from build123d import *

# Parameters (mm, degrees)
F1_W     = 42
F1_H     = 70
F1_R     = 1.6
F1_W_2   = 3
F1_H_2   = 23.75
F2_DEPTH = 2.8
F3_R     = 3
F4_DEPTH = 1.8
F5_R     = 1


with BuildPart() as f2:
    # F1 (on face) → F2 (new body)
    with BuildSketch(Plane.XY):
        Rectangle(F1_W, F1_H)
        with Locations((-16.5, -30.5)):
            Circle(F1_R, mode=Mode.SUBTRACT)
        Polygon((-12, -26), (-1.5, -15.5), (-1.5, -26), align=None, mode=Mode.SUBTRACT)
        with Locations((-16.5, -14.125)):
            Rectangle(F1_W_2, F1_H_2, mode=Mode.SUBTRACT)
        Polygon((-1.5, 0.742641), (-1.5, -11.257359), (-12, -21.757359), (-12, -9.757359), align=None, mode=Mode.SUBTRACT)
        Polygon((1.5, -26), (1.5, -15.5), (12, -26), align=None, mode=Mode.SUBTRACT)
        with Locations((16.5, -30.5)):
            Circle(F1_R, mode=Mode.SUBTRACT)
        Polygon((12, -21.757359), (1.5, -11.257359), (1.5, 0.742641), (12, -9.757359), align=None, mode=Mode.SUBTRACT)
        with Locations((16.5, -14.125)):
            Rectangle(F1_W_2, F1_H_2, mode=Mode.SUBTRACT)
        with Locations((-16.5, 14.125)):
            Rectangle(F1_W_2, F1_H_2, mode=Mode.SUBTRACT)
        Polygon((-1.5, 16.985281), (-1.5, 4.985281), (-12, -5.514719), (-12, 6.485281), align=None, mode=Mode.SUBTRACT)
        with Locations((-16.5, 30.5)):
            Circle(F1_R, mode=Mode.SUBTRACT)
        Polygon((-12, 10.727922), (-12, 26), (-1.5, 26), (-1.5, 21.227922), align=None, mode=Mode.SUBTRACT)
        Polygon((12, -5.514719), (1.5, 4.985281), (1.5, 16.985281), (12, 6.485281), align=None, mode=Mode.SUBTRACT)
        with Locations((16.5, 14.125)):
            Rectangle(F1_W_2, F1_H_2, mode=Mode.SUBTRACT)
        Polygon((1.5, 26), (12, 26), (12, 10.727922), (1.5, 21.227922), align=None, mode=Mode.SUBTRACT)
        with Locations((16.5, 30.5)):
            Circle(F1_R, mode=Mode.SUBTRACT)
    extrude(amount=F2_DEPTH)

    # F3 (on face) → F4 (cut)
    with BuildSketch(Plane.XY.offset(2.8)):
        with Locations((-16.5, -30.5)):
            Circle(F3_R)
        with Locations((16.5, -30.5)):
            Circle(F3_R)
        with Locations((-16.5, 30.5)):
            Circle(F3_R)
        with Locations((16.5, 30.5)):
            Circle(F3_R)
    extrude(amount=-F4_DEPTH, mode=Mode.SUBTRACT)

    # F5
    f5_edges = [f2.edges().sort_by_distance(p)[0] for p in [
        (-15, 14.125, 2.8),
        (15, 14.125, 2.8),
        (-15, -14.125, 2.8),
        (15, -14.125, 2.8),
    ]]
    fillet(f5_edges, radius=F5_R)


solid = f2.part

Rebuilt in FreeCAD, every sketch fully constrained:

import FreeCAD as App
import Part
import Sketcher
Q = App.Units.Quantity


def edges_at(feature, points):
    """Names of the edges that pass closest to the given points."""
    edges = feature.Shape.Edges
    near = lambda p: min(range(len(edges)), key=lambda i: edges[i].distToShape(Part.Vertex(*p))[0])
    return sorted({f"Edge{near(p) + 1}" for p in points})


def add_polygon(sketch, points):
    """Adds a closed chain of lines whose ends are joined by coincident constraints."""
    first, n = sketch.GeometryCount, len(points)
    for a, b in zip(points, points[1:] + points[:1]):
        sketch.addGeometry(Part.LineSegment(App.Vector(*a, 0), App.Vector(*b, 0)), False)
    for i in range(n):
        sketch.addConstraint(Sketcher.Constraint("Coincident", first + i, 2, first + (i + 1) % n, 1))

doc = App.newDocument("Part")
params = doc.addObject("Spreadsheet::Sheet", "Params")
for row, (alias, value) in enumerate([
    ("sketch1_diameter", "3.2 mm"),
    ("sketch1_width", "42 mm"),
    ("sketch1_width2", "3 mm"),
    ("sketch1_height", "70 mm"),
    ("sketch1_height2", "12 mm"),
    ("pad1_length", "2.8 mm"),
    ("sketch2_diameter", "6 mm"),
    ("pocket1_length", "1.8 mm"),
    ("fillet_radius", "1 mm"),
], start=1):
    params.set(f"A{row}", alias)
    params.set(f"B{row}", "=" + value)
    params.setAlias(f"B{row}", alias)

body = doc.addObject("PartDesign::Body", "Body")

# Sketch on XY plane
sketch1 = doc.addObject("Sketcher::SketchObject", "Sketch")
body.addObject(sketch1)
sketch1.AttachmentSupport = (doc.XY_Plane, [""])
sketch1.MapMode = "FlatFace"
add_polygon(sketch1, [(-21, 35), (-21, -35), (21, -35), (21, 35)])  # lines 0-3
sketch1.addGeometry(Part.Circle(App.Vector(-16.5, -30.5, 0), App.Vector(0, 0, 1), 1.6), False)  # 4
add_polygon(sketch1, [(-1.5, -26), (-12, -26), (-1.5, -15.5)])  # lines 5-7
add_polygon(sketch1, [(-15, -26), (-18, -26), (-18, -2.2), (-15, -2.2)])  # lines 8-11
add_polygon(sketch1, [(-12, -9.8), (-1.5, 0.7), (-1.5, -11.3), (-12, -21.8)])  # lines 12-15
add_polygon(sketch1, [(12, -26), (1.5, -26), (1.5, -15.5)])  # lines 16-18
sketch1.addGeometry(Part.Circle(App.Vector(16.5, -30.5, 0), App.Vector(0, 0, 1), 1.6), False)  # 19
add_polygon(sketch1, [(12, -9.8), (12, -21.8), (1.5, -11.3), (1.5, 0.7)])  # lines 20-23
add_polygon(sketch1, [(18, -26), (15, -26), (15, -2.2), (18, -2.2)])  # lines 24-27
add_polygon(sketch1, [(-15, 2.2), (-18, 2.2), (-18, 26), (-15, 26)])  # lines 28-31
add_polygon(sketch1, [(-12, 6.5), (-1.5, 17), (-1.5, 5), (-12, -5.5)])  # lines 32-35
sketch1.addGeometry(Part.Circle(App.Vector(-16.5, 30.5, 0), App.Vector(0, 0, 1), 1.6), False)  # 36
add_polygon(sketch1, [(-1.5, 21.2), (-12, 10.7), (-12, 26), (-1.5, 26)])  # lines 37-40
add_polygon(sketch1, [(12, 6.5), (12, -5.5), (1.5, 5), (1.5, 17)])  # lines 41-44
add_polygon(sketch1, [(18, 2.2), (15, 2.2), (15, 26), (18, 26)])  # lines 45-48
add_polygon(sketch1, [(1.5, 21.2), (1.5, 26), (12, 26), (12, 10.7)])  # lines 49-52
sketch1.addGeometry(Part.Circle(App.Vector(16.5, 30.5, 0), App.Vector(0, 0, 1), 1.6), False)  # 53
sketch1.addConstraint([
    Sketcher.Constraint("Vertical", 0),
    Sketcher.Constraint("Horizontal", 1),
    Sketcher.Constraint("Vertical", 2),
    Sketcher.Constraint("Horizontal", 3),
    Sketcher.Constraint("Horizontal", 5),
    Sketcher.Constraint("Vertical", 7),
    Sketcher.Constraint("Horizontal", 8),
    Sketcher.Constraint("Vertical", 9),
    Sketcher.Constraint("Horizontal", 10),
    Sketcher.Constraint("Vertical", 11),
    Sketcher.Constraint("Vertical", 13),
    Sketcher.Constraint("Vertical", 15),
    Sketcher.Constraint("Horizontal", 16),
    Sketcher.Constraint("Vertical", 17),
    Sketcher.Constraint("Vertical", 20),
    Sketcher.Constraint("Vertical", 22),
    Sketcher.Constraint("Horizontal", 24),
    Sketcher.Constraint("Vertical", 25),
    Sketcher.Constraint("Horizontal", 26),
    Sketcher.Constraint("Vertical", 27),
    Sketcher.Constraint("Horizontal", 28),
    Sketcher.Constraint("Vertical", 29),
    Sketcher.Constraint("Horizontal", 30),
    Sketcher.Constraint("Vertical", 31),
    Sketcher.Constraint("Vertical", 33),
    Sketcher.Constraint("Vertical", 35),
    Sketcher.Constraint("Vertical", 38),
    Sketcher.Constraint("Horizontal", 39),
    Sketcher.Constraint("Vertical", 40),
    Sketcher.Constraint("Vertical", 41),
    Sketcher.Constraint("Vertical", 43),
    Sketcher.Constraint("Horizontal", 45),
    Sketcher.Constraint("Vertical", 46),
    Sketcher.Constraint("Horizontal", 47),
    Sketcher.Constraint("Vertical", 48),
    Sketcher.Constraint("Vertical", 49),
    Sketcher.Constraint("Horizontal", 50),
    Sketcher.Constraint("Vertical", 51),
    Sketcher.Constraint("Equal", 4, 19),
    Sketcher.Constraint("Equal", 19, 36),
    Sketcher.Constraint("Equal", 36, 53),
    Sketcher.Constraint("Symmetric", 19, 3, 36, 3, -1, 1),
    Sketcher.Constraint("Symmetric", 4, 3, 53, 3, -1, 1),
    Sketcher.Constraint("Symmetric", 0, 2, 2, 2, -1, 1),
    Sketcher.Constraint("Symmetric", 26, 2, 28, 2, -1, 1),
    Sketcher.Constraint("Symmetric", 24, 2, 30, 2, -1, 1),
    Sketcher.Constraint("Symmetric", 18, 2, 38, 2, -1, 1),
    Sketcher.Constraint("Symmetric", 10, 2, 45, 2, -1, 1),
    Sketcher.Constraint("Symmetric", 8, 2, 47, 2, -1, 1),
    Sketcher.Constraint("Symmetric", 7, 2, 49, 2, -1, 1),
    Sketcher.Constraint("Symmetric", 4, 3, 19, 3, -2),
    Sketcher.Constraint("Symmetric", 7, 2, 16, 2, -2),
    Sketcher.Constraint("Symmetric", 14, 2, 20, 2, -2),
    Sketcher.Constraint("Symmetric", 13, 2, 21, 2, -2),
    Sketcher.Constraint("Symmetric", 11, 2, 24, 2, -2),
    Sketcher.Constraint("Symmetric", 9, 2, 26, 2, -2),
    Sketcher.Constraint("Symmetric", 34, 2, 41, 2, -2),
    Sketcher.Constraint("Symmetric", 33, 2, 42, 2, -2),
    Sketcher.Constraint("Symmetric", 37, 2, 51, 2, -2),
    Sketcher.Constraint("Symmetric", 40, 2, 52, 2, -2),
    Sketcher.Constraint("Parallel", 6, 12),
    Sketcher.Constraint("Parallel", 12, 14),
    Sketcher.Constraint("Perpendicular", 14, 18),
    Sketcher.Constraint("Parallel", 18, 21),
    Sketcher.Constraint("Parallel", 21, 23),
    Sketcher.Constraint("Perpendicular", 23, 32),
    Sketcher.Constraint("Parallel", 32, 34),
    Sketcher.Constraint("Parallel", 34, 37),
    Sketcher.Constraint("Parallel", 42, 44),
    Sketcher.Constraint("Horizontal", 7, 2, 8, 2),
    Sketcher.Constraint("Horizontal", 6, 2, 17, 2),
    Sketcher.Constraint("Horizontal", 12, 2, 22, 2),
    Sketcher.Constraint("Horizontal", 32, 2, 43, 2),
    Sketcher.Constraint("Vertical", 7, 2, 12, 2),
    Sketcher.Constraint("Vertical", 5, 2, 14, 2),
    Sketcher.Constraint("Vertical", 13, 2, 32, 2),
    Sketcher.Constraint("Vertical", 15, 2, 34, 2),
    Sketcher.Constraint("Equal", 22, 33),
    Sketcher.Constraint("Diameter", 4, Q("3.2 mm")),
    Sketcher.Constraint("DistanceX", 1, 1, 1, 2, Q("42 mm")),
    Sketcher.Constraint("DistanceX", 8, 2, 8, 1, Q("3 mm")),
    Sketcher.Constraint("DistanceY", 0, 2, 0, 1, Q("70 mm")),
    Sketcher.Constraint("DistanceY", 13, 2, 13, 1, Q("12 mm")),
    Sketcher.Constraint("DistanceX", 5, 2, 5, 1, Q("10.5 mm")),
    Sketcher.Constraint("DistanceX", 5, 2, -1, 1, Q("12 mm")),
    Sketcher.Constraint("DistanceY", 5, 2, -1, 1, Q("26 mm")),
    Sketcher.Constraint("DistanceX", 8, 2, -1, 1, Q("18 mm")),
    Sketcher.Constraint("DistanceX", 4, 3, 19, 3, Q("33 mm")),
    Sketcher.Constraint("DistanceY", 4, 3, 36, 3, Q("61 mm")),
    Sketcher.Constraint("DistanceY", 9, 1, 9, 2, Q("23.75 mm")),
    Sketcher.Constraint("DistanceY", 40, 2, 40, 1, Q("4.772078 mm")),
    Sketcher.Constraint("DistanceY", -1, 1, 12, 2, Q("0.742641 mm")),
    Sketcher.Constraint("DistanceY", -1, 1, 32, 2, Q("16.985281 mm")),
])
sketch1.setExpression("Constraints[128]", "Params.sketch1_diameter")
sketch1.setExpression("Constraints[129]", "Params.sketch1_width")
sketch1.setExpression("Constraints[130]", "Params.sketch1_width2")
sketch1.setExpression("Constraints[131]", "Params.sketch1_height")
sketch1.setExpression("Constraints[132]", "Params.sketch1_height2")
pad1 = doc.addObject("PartDesign::Pad", "Pad")
body.addObject(pad1)
pad1.Profile = sketch1
pad1.setExpression("Length", "Params.pad1_length")

# Sketch on XY plane
sketch2 = doc.addObject("Sketcher::SketchObject", "Sketch001")
body.addObject(sketch2)
sketch2.AttachmentSupport = (doc.XY_Plane, [""])
sketch2.MapMode = "FlatFace"
sketch2.AttachmentOffset = App.Placement(App.Vector(0, 0, 2.8), App.Rotation())
sketch2.addGeometry([
    Part.Circle(App.Vector(-16.5, -30.5, 0), App.Vector(0, 0, 1), 3),
    Part.Circle(App.Vector(16.5, -30.5, 0), App.Vector(0, 0, 1), 3),
    Part.Circle(App.Vector(-16.5, 30.5, 0), App.Vector(0, 0, 1), 3),
    Part.Circle(App.Vector(16.5, 30.5, 0), App.Vector(0, 0, 1), 3),
], False)
sketch2.addConstraint([
    Sketcher.Constraint("Equal", 0, 1),
    Sketcher.Constraint("Equal", 1, 2),
    Sketcher.Constraint("Equal", 2, 3),
    Sketcher.Constraint("Symmetric", 1, 3, 2, 3, -1, 1),
    Sketcher.Constraint("Symmetric", 0, 3, 3, 3, -1, 1),
    Sketcher.Constraint("Symmetric", 0, 3, 1, 3, -2),
    Sketcher.Constraint("Diameter", 0, Q("6 mm")),
    Sketcher.Constraint("DistanceX", 0, 3, 1, 3, Q("33 mm")),
    Sketcher.Constraint("DistanceY", 0, 3, 2, 3, Q("61 mm")),
])
sketch2.setExpression("Constraints[6]", "Params.sketch2_diameter")
pocket1 = doc.addObject("PartDesign::Pocket", "Pocket")
body.addObject(pocket1)
pocket1.Profile = sketch2
pocket1.setExpression("Length", "Params.pocket1_length")
doc.recompute()

fillet = doc.addObject("PartDesign::Fillet", "Fillet")
body.addObject(fillet)
fillet.Base = (pocket1, edges_at(pocket1, [
    (-15, 14.125, 2.8),
    (15, 14.125, 2.8),
    (-15, -14.125, 2.8),
    (15, -14.125, 2.8),
]))
fillet.setExpression("Radius", "Params.fillet_radius")

doc.recompute()
